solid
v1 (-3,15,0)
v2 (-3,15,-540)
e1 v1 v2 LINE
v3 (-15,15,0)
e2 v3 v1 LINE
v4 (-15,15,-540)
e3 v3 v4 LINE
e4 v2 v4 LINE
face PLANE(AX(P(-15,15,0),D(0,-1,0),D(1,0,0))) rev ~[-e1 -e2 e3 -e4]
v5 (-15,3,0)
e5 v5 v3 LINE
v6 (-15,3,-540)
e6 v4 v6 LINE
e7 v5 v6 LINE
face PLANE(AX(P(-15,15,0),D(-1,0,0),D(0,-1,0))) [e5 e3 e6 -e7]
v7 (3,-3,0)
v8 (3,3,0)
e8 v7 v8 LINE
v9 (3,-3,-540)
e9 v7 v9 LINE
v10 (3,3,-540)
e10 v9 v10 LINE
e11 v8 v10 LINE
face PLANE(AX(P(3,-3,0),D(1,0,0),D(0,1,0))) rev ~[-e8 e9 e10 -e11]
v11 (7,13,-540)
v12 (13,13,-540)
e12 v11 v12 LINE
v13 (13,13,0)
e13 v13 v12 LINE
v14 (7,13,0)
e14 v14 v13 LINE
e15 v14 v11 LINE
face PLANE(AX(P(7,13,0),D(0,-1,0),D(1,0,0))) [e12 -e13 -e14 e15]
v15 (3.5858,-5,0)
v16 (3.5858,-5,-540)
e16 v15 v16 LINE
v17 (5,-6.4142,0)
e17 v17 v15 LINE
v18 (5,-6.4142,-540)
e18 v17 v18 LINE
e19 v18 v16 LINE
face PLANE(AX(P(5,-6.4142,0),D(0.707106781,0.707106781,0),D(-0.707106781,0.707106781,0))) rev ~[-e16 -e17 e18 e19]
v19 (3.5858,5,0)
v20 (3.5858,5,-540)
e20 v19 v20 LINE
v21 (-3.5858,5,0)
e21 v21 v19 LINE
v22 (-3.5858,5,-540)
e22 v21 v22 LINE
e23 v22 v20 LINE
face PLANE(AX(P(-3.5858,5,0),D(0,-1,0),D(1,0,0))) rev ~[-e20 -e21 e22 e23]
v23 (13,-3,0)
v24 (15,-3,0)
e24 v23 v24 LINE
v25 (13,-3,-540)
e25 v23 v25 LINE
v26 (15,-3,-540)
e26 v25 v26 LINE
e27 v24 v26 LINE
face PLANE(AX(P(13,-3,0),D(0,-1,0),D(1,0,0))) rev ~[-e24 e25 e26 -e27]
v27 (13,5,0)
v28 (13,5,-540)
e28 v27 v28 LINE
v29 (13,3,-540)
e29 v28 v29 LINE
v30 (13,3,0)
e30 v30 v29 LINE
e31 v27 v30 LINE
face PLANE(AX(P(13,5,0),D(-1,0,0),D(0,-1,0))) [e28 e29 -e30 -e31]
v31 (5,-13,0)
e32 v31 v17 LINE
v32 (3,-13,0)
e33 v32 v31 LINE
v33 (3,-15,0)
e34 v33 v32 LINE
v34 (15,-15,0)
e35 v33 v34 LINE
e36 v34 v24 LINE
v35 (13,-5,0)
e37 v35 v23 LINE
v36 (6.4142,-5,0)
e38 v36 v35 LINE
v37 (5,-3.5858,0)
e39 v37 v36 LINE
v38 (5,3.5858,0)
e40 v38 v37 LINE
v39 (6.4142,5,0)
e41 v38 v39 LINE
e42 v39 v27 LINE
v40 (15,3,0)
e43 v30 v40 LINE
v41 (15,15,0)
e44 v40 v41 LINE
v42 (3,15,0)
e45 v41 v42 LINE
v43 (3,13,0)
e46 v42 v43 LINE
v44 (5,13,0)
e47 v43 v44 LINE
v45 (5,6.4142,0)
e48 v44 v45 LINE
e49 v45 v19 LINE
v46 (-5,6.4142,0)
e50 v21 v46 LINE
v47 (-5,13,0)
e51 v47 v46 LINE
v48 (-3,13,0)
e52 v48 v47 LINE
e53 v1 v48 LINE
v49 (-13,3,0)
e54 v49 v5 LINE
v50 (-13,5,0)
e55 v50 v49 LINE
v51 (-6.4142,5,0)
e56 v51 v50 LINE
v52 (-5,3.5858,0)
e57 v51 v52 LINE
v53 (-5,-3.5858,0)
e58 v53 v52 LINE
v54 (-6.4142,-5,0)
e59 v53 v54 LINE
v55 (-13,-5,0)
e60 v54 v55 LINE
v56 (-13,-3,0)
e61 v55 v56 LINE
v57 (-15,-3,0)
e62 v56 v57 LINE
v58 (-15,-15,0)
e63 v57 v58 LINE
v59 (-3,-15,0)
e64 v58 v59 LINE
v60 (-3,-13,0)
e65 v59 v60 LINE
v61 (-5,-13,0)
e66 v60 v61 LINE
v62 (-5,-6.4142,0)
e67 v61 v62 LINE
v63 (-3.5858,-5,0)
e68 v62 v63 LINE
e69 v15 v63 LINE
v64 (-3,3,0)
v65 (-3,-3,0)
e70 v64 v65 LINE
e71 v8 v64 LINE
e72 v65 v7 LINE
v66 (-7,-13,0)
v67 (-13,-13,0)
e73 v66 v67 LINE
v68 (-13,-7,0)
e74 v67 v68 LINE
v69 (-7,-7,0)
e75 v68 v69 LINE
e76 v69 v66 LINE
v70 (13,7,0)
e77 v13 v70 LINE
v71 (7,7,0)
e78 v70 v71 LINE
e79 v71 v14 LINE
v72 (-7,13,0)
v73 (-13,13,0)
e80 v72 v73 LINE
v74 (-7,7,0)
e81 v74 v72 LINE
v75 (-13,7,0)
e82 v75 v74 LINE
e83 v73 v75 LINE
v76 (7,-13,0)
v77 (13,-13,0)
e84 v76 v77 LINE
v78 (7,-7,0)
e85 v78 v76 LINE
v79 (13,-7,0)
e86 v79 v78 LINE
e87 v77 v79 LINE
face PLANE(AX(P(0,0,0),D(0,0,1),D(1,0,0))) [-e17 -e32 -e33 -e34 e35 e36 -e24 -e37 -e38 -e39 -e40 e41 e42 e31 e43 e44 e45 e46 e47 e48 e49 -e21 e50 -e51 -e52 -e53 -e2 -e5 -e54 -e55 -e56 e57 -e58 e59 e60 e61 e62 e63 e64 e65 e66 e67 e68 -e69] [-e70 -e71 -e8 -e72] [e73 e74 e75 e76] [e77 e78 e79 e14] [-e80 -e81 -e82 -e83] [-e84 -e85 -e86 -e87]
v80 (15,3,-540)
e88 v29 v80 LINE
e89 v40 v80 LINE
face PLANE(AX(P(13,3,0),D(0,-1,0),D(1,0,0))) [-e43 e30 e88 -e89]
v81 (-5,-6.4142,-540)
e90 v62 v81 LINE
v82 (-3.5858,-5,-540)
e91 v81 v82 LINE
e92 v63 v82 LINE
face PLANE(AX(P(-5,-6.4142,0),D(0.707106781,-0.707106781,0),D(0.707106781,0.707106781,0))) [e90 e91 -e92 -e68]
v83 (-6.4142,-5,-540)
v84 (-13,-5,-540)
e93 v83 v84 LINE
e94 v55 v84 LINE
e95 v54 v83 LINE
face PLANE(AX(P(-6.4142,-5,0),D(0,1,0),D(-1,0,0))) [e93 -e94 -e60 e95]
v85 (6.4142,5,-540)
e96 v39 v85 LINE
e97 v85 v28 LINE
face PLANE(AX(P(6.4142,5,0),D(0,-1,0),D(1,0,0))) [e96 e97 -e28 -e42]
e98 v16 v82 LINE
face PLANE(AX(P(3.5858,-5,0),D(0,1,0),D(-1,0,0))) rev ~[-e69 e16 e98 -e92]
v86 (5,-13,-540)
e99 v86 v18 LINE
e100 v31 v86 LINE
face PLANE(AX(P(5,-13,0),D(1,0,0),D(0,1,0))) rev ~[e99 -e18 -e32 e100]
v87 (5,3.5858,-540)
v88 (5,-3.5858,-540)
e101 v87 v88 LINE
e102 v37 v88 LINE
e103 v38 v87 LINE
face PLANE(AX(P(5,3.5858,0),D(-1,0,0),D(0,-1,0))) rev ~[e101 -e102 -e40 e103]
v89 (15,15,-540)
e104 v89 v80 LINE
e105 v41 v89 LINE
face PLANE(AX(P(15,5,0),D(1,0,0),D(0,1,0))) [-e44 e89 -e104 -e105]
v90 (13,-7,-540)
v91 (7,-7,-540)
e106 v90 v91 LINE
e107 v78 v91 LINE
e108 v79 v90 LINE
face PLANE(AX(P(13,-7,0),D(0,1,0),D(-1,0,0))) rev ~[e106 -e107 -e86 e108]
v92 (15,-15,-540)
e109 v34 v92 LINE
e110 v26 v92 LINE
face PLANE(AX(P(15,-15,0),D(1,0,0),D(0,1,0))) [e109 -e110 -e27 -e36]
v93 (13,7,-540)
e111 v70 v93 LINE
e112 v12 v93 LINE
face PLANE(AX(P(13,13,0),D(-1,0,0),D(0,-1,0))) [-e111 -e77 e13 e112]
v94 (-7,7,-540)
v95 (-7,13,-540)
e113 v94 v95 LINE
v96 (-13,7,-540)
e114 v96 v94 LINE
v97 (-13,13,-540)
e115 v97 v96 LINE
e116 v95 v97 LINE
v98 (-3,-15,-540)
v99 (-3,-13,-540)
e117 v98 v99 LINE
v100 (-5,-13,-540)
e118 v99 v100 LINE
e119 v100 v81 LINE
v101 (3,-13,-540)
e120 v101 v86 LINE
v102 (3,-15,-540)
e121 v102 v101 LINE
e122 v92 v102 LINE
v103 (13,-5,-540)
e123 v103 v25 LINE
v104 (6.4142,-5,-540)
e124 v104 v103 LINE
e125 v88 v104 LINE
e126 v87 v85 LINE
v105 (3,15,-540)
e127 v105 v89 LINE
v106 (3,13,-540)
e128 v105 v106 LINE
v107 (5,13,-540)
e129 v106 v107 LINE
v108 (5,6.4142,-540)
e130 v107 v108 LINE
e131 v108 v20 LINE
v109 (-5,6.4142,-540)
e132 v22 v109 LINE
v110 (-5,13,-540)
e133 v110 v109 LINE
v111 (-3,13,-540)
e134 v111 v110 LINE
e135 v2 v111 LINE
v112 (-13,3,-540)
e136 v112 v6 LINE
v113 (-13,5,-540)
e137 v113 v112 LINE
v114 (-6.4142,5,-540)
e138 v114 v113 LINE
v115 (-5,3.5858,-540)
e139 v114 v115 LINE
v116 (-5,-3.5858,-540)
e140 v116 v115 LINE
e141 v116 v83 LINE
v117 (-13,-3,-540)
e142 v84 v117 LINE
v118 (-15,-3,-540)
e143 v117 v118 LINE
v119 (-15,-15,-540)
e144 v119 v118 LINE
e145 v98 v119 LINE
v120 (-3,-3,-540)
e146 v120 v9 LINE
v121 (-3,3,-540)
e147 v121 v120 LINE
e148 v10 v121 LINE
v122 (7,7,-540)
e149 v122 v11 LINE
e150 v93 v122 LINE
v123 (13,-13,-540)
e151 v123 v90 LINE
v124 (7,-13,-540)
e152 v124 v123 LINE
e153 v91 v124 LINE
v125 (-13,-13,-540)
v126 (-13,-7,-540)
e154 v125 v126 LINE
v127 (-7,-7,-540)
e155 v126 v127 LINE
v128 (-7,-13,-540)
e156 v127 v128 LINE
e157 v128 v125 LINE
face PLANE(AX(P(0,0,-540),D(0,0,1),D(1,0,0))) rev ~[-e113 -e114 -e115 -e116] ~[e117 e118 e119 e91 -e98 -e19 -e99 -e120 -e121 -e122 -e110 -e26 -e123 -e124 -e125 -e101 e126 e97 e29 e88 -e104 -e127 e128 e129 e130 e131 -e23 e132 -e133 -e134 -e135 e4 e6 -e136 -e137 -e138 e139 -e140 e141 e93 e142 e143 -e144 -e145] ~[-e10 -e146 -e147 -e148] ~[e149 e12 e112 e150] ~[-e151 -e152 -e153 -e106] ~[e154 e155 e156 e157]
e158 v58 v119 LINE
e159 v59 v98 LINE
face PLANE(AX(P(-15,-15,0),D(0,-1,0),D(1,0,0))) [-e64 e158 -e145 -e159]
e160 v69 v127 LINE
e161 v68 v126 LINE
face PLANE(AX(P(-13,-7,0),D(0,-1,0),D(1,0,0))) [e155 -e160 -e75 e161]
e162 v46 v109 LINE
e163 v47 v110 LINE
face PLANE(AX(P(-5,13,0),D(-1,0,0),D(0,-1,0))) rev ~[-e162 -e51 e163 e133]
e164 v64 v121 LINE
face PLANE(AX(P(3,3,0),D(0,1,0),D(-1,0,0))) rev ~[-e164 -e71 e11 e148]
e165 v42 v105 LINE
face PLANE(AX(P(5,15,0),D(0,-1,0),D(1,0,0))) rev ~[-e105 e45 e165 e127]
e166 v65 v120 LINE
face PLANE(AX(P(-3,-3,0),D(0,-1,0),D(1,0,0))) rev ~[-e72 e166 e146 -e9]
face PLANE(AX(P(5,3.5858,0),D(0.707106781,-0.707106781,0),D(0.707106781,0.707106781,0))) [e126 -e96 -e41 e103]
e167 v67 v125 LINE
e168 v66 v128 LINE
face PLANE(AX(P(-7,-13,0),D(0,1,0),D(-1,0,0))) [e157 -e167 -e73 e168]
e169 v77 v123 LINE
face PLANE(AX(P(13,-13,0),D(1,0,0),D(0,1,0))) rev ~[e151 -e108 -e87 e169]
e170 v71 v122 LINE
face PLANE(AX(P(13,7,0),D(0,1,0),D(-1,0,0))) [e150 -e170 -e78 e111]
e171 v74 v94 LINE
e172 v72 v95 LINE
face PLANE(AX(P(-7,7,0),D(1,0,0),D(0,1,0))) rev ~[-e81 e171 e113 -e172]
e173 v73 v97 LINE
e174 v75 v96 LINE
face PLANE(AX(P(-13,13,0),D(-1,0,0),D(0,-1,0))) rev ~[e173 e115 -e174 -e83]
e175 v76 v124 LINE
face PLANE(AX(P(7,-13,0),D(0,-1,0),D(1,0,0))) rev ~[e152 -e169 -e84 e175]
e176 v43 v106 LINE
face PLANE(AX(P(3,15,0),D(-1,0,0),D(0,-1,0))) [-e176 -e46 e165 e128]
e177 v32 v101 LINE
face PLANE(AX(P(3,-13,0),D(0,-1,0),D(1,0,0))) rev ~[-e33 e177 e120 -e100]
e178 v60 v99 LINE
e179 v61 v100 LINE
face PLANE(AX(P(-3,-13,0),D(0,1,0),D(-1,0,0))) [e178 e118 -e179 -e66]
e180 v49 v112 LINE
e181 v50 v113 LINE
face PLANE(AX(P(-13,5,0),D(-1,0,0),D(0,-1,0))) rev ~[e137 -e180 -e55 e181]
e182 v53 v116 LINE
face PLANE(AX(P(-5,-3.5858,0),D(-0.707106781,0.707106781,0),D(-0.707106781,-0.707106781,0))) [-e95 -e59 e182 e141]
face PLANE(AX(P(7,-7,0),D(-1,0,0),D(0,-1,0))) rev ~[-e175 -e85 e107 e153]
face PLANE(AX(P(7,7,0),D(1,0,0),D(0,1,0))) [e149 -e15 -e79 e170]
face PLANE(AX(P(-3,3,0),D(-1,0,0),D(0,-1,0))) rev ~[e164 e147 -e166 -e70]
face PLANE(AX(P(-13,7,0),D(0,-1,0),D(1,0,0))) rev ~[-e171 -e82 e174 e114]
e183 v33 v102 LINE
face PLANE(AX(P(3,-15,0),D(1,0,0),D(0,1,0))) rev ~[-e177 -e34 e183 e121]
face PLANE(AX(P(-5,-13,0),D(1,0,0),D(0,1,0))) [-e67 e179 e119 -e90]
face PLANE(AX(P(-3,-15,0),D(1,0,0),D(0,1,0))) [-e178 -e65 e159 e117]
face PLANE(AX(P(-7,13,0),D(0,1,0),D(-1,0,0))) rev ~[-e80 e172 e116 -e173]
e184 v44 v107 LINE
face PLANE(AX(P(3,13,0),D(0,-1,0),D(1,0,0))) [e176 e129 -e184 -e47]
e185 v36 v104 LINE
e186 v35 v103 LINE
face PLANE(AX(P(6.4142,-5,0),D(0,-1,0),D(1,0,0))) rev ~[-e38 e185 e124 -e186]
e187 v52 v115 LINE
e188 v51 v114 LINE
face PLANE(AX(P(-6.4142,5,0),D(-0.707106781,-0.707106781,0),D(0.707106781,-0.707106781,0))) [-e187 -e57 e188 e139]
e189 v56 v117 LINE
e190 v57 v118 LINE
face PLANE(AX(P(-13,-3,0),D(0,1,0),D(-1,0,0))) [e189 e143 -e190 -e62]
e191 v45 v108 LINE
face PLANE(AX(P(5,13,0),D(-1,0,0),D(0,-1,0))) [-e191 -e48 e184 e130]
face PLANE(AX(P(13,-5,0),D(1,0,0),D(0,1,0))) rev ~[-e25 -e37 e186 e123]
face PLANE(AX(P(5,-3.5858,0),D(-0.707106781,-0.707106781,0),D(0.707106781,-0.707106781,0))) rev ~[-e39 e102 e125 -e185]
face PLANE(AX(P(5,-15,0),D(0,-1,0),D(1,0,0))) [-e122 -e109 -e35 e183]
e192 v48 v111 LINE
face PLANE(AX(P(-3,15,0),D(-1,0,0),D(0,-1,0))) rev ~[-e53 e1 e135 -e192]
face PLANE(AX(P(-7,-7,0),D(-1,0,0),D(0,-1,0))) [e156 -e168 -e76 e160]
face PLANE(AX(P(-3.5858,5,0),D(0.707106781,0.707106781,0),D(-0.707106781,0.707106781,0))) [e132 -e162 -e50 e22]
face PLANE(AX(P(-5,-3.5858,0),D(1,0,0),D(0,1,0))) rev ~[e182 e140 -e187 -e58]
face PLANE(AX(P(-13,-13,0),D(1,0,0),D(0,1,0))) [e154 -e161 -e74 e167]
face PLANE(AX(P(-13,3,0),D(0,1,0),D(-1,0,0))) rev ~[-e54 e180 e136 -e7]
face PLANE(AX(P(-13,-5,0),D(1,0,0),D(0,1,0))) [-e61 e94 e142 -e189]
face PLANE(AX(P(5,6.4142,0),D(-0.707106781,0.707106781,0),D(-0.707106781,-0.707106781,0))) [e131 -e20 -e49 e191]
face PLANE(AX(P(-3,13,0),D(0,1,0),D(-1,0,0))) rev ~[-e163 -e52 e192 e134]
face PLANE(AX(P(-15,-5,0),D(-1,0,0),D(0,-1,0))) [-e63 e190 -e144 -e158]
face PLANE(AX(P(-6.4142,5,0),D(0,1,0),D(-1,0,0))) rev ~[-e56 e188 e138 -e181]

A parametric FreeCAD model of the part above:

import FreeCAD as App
import Part
import Sketcher

V = App.Vector
Q = App.Units.Quantity


def add_polygon(sketch, points):
    """Adds a closed chain of lines whose ends are joined by coincident constraints."""
    first, n = sketch.GeometryCount, len(points)
    for a, b in zip(points, points[1:] + points[:1]):
        sketch.addGeometry(Part.LineSegment(App.Vector(*a, 0), App.Vector(*b, 0)), False)
    for i in range(n):
        sketch.addConstraint(Sketcher.Constraint("Coincident", first + i, 2, first + (i + 1) % n, 1))

doc = App.newDocument("Part")
params = doc.addObject("Spreadsheet::Sheet", "Params")
for row, (alias, value) in enumerate([
    ("sketch1_width", "2 mm"),
    ("sketch1_length", "2 mm"),
    ("sketch1_width2", "12 mm"),
    ("sketch1_width3", "6 mm"),
    ("pad1_length", "540 mm"),
], start=1):
    params.set(f"A{row}", alias)
    params.set(f"B{row}", "=" + value)
    params.setAlias(f"B{row}", alias)

body = doc.addObject("PartDesign::Body", "Body")

sketch1 = body.newObject("Sketcher::SketchObject", "Sketch")
sketch1.AttachmentSupport = (doc.getObject("XY_Plane"), [""])
sketch1.MapMode = "FlatFace"
add_polygon(sketch1, [(-15, 15), (-15, 3), (-13, 3), (-13, 5), (-6.4, 5), (-5, 3.6), (-5, -3.6), (-6.4, -5), (-13, -5), (-13, -3), (-15, -3), (-15, -15), (-3, -15), (-3, -13), (-5, -13), (-5, -6.4), (-3.6, -5), (3.6, -5), (5, -6.4), (5, -13), (3, -13), (3, -15), (15, -15), (15, -3), (13, -3), (13, -5), (6.4, -5), (5, -3.6), (5, 3.6), (6.4, 5), (13, 5), (13, 3), (15, 3), (15, 15), (3, 15), (3, 13), (5, 13), (5, 6.4), (3.6, 5), (-3.6, 5), (-5, 6.4), (-5, 13), (-3, 13), (-3, 15)])
add_polygon(sketch1, [(-7, 7), (-13, 7), (-13, 13), (-7, 13)])
add_polygon(sketch1, [(3, 3), (3, -3), (-3, -3), (-3, 3)])
add_polygon(sketch1, [(7, 7), (7, 13), (13, 13), (13, 7)])
add_polygon(sketch1, [(7, -7), (13, -7), (13, -13), (7, -13)])
add_polygon(sketch1, [(-13, -7), (-7, -7), (-7, -13), (-13, -13)])
sketch1.addConstraint([
    Sketcher.Constraint("Vertical", 0),
    Sketcher.Constraint("Horizontal", 1),
    Sketcher.Constraint("Vertical", 2),
    Sketcher.Constraint("Horizontal", 3),
    Sketcher.Constraint("Vertical", 5),
    Sketcher.Constraint("Horizontal", 7),
    Sketcher.Constraint("Vertical", 8),
    Sketcher.Constraint("Horizontal", 9),
    Sketcher.Constraint("Vertical", 10),
    Sketcher.Constraint("Horizontal", 11),
    Sketcher.Constraint("Vertical", 12),
    Sketcher.Constraint("Horizontal", 13),
    Sketcher.Constraint("Vertical", 14),
    Sketcher.Constraint("Horizontal", 16),
    Sketcher.Constraint("Vertical", 18),
    Sketcher.Constraint("Horizontal", 19),
    Sketcher.Constraint("Vertical", 20),
    Sketcher.Constraint("Horizontal", 21),
    Sketcher.Constraint("Vertical", 22),
    Sketcher.Constraint("Horizontal", 23),
    Sketcher.Constraint("Vertical", 24),
    Sketcher.Constraint("Horizontal", 25),
    Sketcher.Constraint("Vertical", 27),
    Sketcher.Constraint("Horizontal", 29),
    Sketcher.Constraint("Vertical", 30),
    Sketcher.Constraint("Horizontal", 31),
    Sketcher.Constraint("Vertical", 32),
    Sketcher.Constraint("Horizontal", 33),
    Sketcher.Constraint("Vertical", 34),
    Sketcher.Constraint("Horizontal", 35),
    Sketcher.Constraint("Vertical", 36),
    Sketcher.Constraint("Horizontal", 38),
    Sketcher.Constraint("Vertical", 40),
    Sketcher.Constraint("Horizontal", 41),
    Sketcher.Constraint("Vertical", 42),
    Sketcher.Constraint("Horizontal", 43),
    Sketcher.Constraint("Horizontal", 44),
    Sketcher.Constraint("Vertical", 45),
    Sketcher.Constraint("Horizontal", 46),
    Sketcher.Constraint("Vertical", 47),
    Sketcher.Constraint("Vertical", 48),
    Sketcher.Constraint("Horizontal", 49),
    Sketcher.Constraint("Vertical", 50),
    Sketcher.Constraint("Horizontal", 51),
    Sketcher.Constraint("Vertical", 52),
    Sketcher.Constraint("Horizontal", 53),
    Sketcher.Constraint("Vertical", 54),
    Sketcher.Constraint("Horizontal", 55),
    Sketcher.Constraint("Horizontal", 56),
    Sketcher.Constraint("Vertical", 57),
    Sketcher.Constraint("Horizontal", 58),
    Sketcher.Constraint("Vertical", 59),
    Sketcher.Constraint("Horizontal", 60),
    Sketcher.Constraint("Vertical", 61),
    Sketcher.Constraint("Horizontal", 62),
    Sketcher.Constraint("Vertical", 63),
    Sketcher.Constraint("Symmetric", 0, 2, 22, 2, -1, 1),
    Sketcher.Constraint("Symmetric", 2, 2, 24, 2, -1, 1),
    Sketcher.Constraint("Symmetric", 4, 2, 26, 2, -1, 1),
    Sketcher.Constraint("Symmetric", 6, 2, 28, 2, -1, 1),
    Sketcher.Constraint("Symmetric", 8, 2, 30, 2, -1, 1),
    Sketcher.Constraint("Symmetric", 10, 2, 32, 2, -1, 1),
    Sketcher.Constraint("Symmetric", 12, 2, 34, 2, -1, 1),
    Sketcher.Constraint("Symmetric", 14, 2, 36, 2, -1, 1),
    Sketcher.Constraint("Symmetric", 15, 2, 37, 2, -1, 1),
    Sketcher.Constraint("Symmetric", 17, 2, 39, 2, -1, 1),
    Sketcher.Constraint("Symmetric", 19, 2, 41, 2, -1, 1),
    Sketcher.Constraint("Symmetric", 48, 2, 50, 2, -1, 1),
    Sketcher.Constraint("Symmetric", 44, 2, 56, 2, -1, 1),
    Sketcher.Constraint("Symmetric", 46, 2, 58, 2, -1, 1),
    Sketcher.Constraint("Symmetric", 55, 2, 60, 2, -1, 1),
    Sketcher.Constraint("Symmetric", 53, 2, 62, 2, -1, 1),
    Sketcher.Constraint("Symmetric", 14, 2, 17, 2, -2),
    Sketcher.Constraint("Symmetric", 12, 2, 19, 2, -2),
    Sketcher.Constraint("Symmetric", 10, 2, 21, 2, -2),
    Sketcher.Constraint("Symmetric", 8, 2, 23, 2, -2),
    Sketcher.Constraint("Symmetric", 6, 2, 25, 2, -2),
    Sketcher.Constraint("Symmetric", 46, 2, 52, 2, -2),
    Sketcher.Constraint("Symmetric", 44, 2, 54, 2, -2),
    Sketcher.Constraint("Perpendicular", 4, 6),
    Sketcher.Constraint("Parallel", 6, 15),
    Sketcher.Constraint("Perpendicular", 15, 17),
    Sketcher.Constraint("Parallel", 17, 26),
    Sketcher.Constraint("Perpendicular", 26, 28),
    Sketcher.Constraint("Perpendicular", 37, 39),
    Sketcher.Constraint("Horizontal", 7, 2, 15, 2),
    Sketcher.Constraint("Horizontal", 5, 2, 26, 2),
    Sketcher.Constraint("Horizontal", 33, 2, 42, 2),
    Sketcher.Constraint("Horizontal", 41, 2, 45, 2),
    Sketcher.Constraint("Horizontal", 23, 2, 48, 2),
    Sketcher.Constraint("Vertical", 5, 2, 13, 2),
    Sketcher.Constraint("Vertical", 8, 2, 44, 2),
    Sketcher.Constraint("Vertical", 34, 2, 48, 2),
    Sketcher.Constraint("Equal", 9, 13),
    Sketcher.Constraint("Equal", 46, 49),
    Sketcher.Constraint("Equal", 43, 0),
    Sketcher.Constraint("Equal", 41, 2),
    Sketcher.Constraint("Equal", 38, 5),
    Sketcher.Constraint("Equal", 8, 12),
    Sketcher.Constraint("Equal", 29, 14),
    Sketcher.Constraint("Equal", 62, 45),
    Sketcher.Constraint("DistanceX", 1, 1, 1, 2, Q("2 mm")),
    Sketcher.Constraint("Distance", 4, Q("2 mm")),
    Sketcher.Constraint("DistanceX", 11, 1, 11, 2, Q("12 mm")),
    Sketcher.Constraint("DistanceX", 44, 2, 44, 1, Q("6 mm")),
])
sketch1.setExpression("Constraints[165]", "Params.sketch1_width")
sketch1.setExpression("Constraints[166]", "Params.sketch1_length")
sketch1.setExpression("Constraints[167]", "Params.sketch1_width2")
sketch1.setExpression("Constraints[168]", "Params.sketch1_width3")
pad1 = body.newObject("PartDesign::Pad", "Pad")
pad1.Profile = sketch1
pad1.setExpression("Length", "Params.pad1_length")
pad1.Reversed = True

doc.recompute()
